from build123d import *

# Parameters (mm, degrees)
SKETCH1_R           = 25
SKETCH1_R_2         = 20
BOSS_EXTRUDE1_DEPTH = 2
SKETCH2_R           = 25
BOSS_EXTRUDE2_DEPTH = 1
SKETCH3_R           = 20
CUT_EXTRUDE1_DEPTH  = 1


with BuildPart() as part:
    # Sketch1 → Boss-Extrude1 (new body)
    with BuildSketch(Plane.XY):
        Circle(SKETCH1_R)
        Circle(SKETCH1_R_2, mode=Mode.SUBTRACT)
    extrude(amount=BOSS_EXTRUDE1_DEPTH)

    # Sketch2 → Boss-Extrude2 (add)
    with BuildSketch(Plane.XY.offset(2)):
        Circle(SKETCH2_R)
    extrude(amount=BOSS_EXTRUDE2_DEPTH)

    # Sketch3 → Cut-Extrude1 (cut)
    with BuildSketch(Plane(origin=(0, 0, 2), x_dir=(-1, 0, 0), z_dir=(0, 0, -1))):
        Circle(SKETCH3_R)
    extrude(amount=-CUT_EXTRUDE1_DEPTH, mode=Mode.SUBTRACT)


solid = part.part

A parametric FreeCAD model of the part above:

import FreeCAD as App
import Part
import Sketcher

V = App.Vector

doc = App.newDocument("Part")
params = doc.addObject("Spreadsheet::Sheet", "Params")
for row, (alias, value) in enumerate([
    ("sketch1_diameter", "50 mm"),
    ("sketch1_diameter2", "40 mm"),
    ("pad1_length", "2 mm"),
    ("sketch2_diameter", "50 mm"),
    ("pad2_length", "1 mm"),
    ("sketch3_diameter", "40 mm"),
    ("pocket1_length", "1 mm"),
], start=1):
    params.set(f"A{row}", alias)
    params.set(f"B{row}", "=" + value)
    params.setAlias(f"B{row}", alias)

body = doc.addObject("PartDesign::Body", "Body")

# Sketch on XY plane
sketch1 = body.newObject("Sketcher::SketchObject", "Sketch")
sketch1.AttachmentSupport = (doc.getObject("XY_Plane"), [""])
sketch1.MapMode = "FlatFace"
sketch1.addGeometry([
    Part.Circle(V(0, 0, 0), V(0, 0, 1), 25),
    Part.Circle(V(0, 0, 0), V(0, 0, 1), 20),
], False)
sketch1.addConstraint([
    Sketcher.Constraint("Coincident", 0, 3, -1, 1),
    Sketcher.Constraint("Coincident", 1, 3, -1, 1),
    Sketcher.Constraint("Diameter", 0, 50.0),
    Sketcher.Constraint("Diameter", 1, 40.0),
])
sketch1.setExpression("Constraints[2]", "Params.sketch1_diameter")
sketch1.setExpression("Constraints[3]", "Params.sketch1_diameter2")
pad1 = body.newObject("PartDesign::Pad", "Pad")
pad1.Profile = sketch1
pad1.setExpression("Length", "Params.pad1_length")

# Sketch on XY plane
sketch2 = body.newObject("Sketcher::SketchObject", "Sketch001")
sketch2.AttachmentSupport = (doc.getObject("XY_Plane"), [""])
sketch2.MapMode = "FlatFace"
sketch2.AttachmentOffset = App.Placement(V(0, 0, 2), App.Rotation())
sketch2.addGeometry(Part.Circle(V(0, 0, 0), V(0, 0, 1), 25), False)
sketch2.addConstraint([
    Sketcher.Constraint("Coincident", 0, 3, -1, 1),
    Sketcher.Constraint("Diameter", 0, 50.0),
])
sketch2.setExpression("Constraints[1]", "Params.sketch2_diameter")
pad2 = body.newObject("PartDesign::Pad", "Pad001")
pad2.Profile = sketch2
pad2.setExpression("Length", "Params.pad2_length")

# Sketch on XY plane
sketch3 = body.newObject("Sketcher::SketchObject", "Sketch002")
sketch3.AttachmentSupport = (doc.getObject("XY_Plane"), [""])
sketch3.MapMode = "FlatFace"
sketch3.AttachmentOffset = App.Placement(V(0, 0, 2), App.Rotation())
sketch3.addGeometry(Part.Circle(V(0, 0, 0), V(0, 0, 1), 20), False)
sketch3.addConstraint([
    Sketcher.Constraint("Coincident", 0, 3, -1, 1),
    Sketcher.Constraint("Diameter", 0, 40.0),
])
sketch3.setExpression("Constraints[1]", "Params.sketch3_diameter")
pocket1 = body.newObject("PartDesign::Pocket", "Pocket")
pocket1.Profile = sketch3
pocket1.setExpression("Length", "Params.pocket1_length")
pocket1.Reversed = True

doc.recompute()
